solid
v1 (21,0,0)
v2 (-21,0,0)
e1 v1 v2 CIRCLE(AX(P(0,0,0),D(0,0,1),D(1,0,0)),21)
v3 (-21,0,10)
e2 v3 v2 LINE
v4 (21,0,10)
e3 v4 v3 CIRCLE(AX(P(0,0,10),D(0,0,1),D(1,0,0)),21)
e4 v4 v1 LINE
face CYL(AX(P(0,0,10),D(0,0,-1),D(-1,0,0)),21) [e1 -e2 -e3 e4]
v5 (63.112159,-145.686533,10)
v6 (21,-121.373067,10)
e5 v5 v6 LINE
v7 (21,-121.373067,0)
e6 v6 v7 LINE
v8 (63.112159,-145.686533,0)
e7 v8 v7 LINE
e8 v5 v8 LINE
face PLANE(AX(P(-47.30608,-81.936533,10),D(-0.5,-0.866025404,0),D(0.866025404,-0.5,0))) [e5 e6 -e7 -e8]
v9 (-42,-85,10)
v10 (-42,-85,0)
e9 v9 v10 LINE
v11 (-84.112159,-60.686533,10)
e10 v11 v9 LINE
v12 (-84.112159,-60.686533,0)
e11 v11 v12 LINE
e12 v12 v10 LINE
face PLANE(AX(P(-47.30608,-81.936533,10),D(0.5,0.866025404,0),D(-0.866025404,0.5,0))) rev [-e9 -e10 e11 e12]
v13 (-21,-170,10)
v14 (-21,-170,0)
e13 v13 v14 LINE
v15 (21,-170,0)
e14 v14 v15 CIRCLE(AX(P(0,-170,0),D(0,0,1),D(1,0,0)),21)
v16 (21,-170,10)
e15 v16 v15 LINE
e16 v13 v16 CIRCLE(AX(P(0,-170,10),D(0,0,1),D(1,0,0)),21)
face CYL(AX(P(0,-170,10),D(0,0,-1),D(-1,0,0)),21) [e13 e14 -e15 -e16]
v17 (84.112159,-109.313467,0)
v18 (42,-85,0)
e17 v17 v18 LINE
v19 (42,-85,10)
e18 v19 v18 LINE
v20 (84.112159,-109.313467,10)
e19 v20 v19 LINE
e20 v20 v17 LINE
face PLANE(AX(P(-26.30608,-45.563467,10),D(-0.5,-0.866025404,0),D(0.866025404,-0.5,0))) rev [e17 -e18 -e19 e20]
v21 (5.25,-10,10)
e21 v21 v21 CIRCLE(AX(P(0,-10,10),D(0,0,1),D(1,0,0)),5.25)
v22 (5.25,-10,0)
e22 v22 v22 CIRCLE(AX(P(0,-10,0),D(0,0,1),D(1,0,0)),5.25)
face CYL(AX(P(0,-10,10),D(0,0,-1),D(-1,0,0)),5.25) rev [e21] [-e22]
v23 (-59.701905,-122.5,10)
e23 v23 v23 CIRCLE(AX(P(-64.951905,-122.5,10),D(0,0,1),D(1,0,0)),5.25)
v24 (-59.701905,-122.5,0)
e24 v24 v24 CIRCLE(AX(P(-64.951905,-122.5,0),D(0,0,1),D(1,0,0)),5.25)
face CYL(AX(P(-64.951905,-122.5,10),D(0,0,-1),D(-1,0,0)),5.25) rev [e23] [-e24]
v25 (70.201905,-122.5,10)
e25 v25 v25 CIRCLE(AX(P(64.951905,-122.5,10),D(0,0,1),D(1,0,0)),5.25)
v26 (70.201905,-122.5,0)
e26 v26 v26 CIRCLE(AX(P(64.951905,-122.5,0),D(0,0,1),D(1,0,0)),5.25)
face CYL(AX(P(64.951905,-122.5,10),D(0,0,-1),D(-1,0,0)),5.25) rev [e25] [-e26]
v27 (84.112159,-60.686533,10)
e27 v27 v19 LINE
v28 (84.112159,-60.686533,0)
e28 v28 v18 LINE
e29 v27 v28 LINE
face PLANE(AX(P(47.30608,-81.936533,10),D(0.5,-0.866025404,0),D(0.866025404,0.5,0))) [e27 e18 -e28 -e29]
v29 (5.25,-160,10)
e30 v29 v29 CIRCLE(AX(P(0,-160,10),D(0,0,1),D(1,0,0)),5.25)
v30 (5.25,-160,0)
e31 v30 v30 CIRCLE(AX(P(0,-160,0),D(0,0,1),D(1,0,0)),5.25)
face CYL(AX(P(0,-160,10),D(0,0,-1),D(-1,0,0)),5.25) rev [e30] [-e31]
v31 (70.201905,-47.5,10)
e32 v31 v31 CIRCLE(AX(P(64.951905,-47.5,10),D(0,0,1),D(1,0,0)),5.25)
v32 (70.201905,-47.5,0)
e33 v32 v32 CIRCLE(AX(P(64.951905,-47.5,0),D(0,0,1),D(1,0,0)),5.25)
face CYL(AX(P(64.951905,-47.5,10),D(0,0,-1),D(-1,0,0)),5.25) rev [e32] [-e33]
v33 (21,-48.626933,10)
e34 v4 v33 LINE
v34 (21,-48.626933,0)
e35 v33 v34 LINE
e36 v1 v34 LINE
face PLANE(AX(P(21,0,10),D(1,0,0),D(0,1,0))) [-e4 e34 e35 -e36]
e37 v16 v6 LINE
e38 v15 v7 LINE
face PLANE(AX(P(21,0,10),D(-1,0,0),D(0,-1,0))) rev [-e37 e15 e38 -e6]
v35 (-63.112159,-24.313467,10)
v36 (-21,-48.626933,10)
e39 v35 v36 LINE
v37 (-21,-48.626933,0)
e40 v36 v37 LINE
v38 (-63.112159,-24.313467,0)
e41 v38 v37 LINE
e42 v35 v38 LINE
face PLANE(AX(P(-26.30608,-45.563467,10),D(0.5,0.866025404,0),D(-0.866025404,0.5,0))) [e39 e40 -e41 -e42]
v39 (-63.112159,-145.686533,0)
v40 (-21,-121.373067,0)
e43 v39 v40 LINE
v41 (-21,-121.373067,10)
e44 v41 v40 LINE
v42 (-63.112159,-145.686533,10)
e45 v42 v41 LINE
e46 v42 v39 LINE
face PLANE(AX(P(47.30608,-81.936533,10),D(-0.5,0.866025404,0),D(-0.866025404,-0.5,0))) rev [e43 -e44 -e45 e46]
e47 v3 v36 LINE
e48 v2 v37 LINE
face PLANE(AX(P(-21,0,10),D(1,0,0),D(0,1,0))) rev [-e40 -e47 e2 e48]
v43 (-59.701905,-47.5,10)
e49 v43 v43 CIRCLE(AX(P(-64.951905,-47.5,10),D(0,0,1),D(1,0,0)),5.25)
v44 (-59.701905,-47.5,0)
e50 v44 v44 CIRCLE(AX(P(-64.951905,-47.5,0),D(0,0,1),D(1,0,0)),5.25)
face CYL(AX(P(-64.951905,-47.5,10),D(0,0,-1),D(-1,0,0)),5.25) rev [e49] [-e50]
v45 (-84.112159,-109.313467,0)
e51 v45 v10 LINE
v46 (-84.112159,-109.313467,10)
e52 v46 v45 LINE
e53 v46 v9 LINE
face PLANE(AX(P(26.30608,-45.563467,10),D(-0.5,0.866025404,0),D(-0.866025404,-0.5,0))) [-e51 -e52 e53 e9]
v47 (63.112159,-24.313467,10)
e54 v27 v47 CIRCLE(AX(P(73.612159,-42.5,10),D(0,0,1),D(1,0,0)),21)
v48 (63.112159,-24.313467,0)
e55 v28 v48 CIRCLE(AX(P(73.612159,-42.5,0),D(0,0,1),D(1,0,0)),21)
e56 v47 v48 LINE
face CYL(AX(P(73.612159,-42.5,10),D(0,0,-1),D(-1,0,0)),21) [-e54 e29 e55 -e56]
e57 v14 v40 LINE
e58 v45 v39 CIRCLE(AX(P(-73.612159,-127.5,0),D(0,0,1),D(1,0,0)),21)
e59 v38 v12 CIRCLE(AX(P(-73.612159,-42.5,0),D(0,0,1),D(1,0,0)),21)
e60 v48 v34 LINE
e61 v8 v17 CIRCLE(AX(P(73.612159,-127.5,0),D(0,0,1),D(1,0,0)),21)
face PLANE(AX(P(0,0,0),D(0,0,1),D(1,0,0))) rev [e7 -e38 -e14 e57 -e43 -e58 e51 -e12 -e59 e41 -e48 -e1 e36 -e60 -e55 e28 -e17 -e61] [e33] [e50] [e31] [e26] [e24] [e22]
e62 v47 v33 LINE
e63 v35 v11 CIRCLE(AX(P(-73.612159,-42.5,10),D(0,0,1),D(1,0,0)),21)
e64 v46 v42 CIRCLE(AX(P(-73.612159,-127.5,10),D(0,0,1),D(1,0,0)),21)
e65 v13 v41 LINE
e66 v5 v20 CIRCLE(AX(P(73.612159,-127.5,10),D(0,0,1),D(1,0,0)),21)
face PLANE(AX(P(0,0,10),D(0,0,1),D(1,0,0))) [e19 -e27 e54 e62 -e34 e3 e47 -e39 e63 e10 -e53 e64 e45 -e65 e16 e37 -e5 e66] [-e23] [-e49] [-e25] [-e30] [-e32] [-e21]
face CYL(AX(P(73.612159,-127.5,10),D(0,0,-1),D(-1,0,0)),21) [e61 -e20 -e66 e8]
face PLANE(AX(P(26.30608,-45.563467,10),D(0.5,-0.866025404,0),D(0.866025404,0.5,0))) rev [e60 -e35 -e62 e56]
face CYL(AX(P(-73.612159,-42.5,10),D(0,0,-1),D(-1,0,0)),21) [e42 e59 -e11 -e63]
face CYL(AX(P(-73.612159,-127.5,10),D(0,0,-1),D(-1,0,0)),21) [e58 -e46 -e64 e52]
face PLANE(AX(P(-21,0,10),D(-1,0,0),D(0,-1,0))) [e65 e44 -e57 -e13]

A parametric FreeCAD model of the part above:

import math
import FreeCAD as App
import Part
import Sketcher
Q = App.Units.Quantity

doc = App.newDocument("Part")
params = doc.addObject("Spreadsheet::Sheet", "Params")
for row, (alias, value) in enumerate([
    ("sketch1_radius", "21 mm"),
    ("sketch1_diameter", "10.5 mm"),
    ("pad1_length", "10 mm"),
], start=1):
    params.set(f"A{row}", alias)
    params.set(f"B{row}", "=" + value)
    params.setAlias(f"B{row}", alias)

body = doc.addObject("PartDesign::Body", "Body")

sketch1 = doc.addObject("Sketcher::SketchObject", "Sketch")
body.addObject(sketch1)
sketch1.AttachmentSupport = (doc.XY_Plane, [""])
sketch1.MapMode = "FlatFace"
sketch1.addGeometry([
    Part.LineSegment(App.Vector(21, -49, 0), App.Vector(21, 0, 0)),
    Part.ArcOfCircle(Part.Circle(App.Vector(0, 0, 0), App.Vector(0, 0, 1), 21), math.radians(0), math.radians(180)),
    Part.LineSegment(App.Vector(-21, 0, 0), App.Vector(-21, -49, 0)),
    Part.LineSegment(App.Vector(-21, -49, 0), App.Vector(-63, -24, 0)),
    Part.ArcOfCircle(Part.Circle(App.Vector(-74, -42, 0), App.Vector(0, 0, 1), 21), math.radians(60), math.radians(240)),
    Part.LineSegment(App.Vector(-84, -61, 0), App.Vector(-42, -85, 0)),
    Part.LineSegment(App.Vector(-42, -85, 0), App.Vector(-84, -109, 0)),
    Part.ArcOfCircle(Part.Circle(App.Vector(-74, -128, 0), App.Vector(0, 0, 1), 21), math.radians(120), math.radians(300)),
    Part.LineSegment(App.Vector(-63, -146, 0), App.Vector(-21, -121, 0)),
    Part.LineSegment(App.Vector(-21, -121, 0), App.Vector(-21, -170, 0)),
    Part.ArcOfCircle(Part.Circle(App.Vector(0, -170, 0), App.Vector(0, 0, 1), 21), math.radians(180), math.radians(360)),
    Part.LineSegment(App.Vector(21, -170, 0), App.Vector(21, -121, 0)),
    Part.LineSegment(App.Vector(21, -121, 0), App.Vector(63, -146, 0)),
    Part.ArcOfCircle(Part.Circle(App.Vector(74, -128, 0), App.Vector(0, 0, 1), 21), math.radians(-120), math.radians(60)),
    Part.LineSegment(App.Vector(84, -109, 0), App.Vector(42, -85, 0)),
    Part.LineSegment(App.Vector(42, -85, 0), App.Vector(84, -61, 0)),
    Part.ArcOfCircle(Part.Circle(App.Vector(74, -42, 0), App.Vector(0, 0, 1), 21), math.radians(-60), math.radians(120)),
    Part.LineSegment(App.Vector(63, -24, 0), App.Vector(21, -49, 0)),
    Part.Circle(App.Vector(65, -122, 0), App.Vector(0, 0, 1), 5),
    Part.Circle(App.Vector(0, -160, 0), App.Vector(0, 0, 1), 5),
    Part.Circle(App.Vector(-65, -122, 0), App.Vector(0, 0, 1), 5),
    Part.Circle(App.Vector(65, -48, 0), App.Vector(0, 0, 1), 5),
    Part.Circle(App.Vector(-65, -48, 0), App.Vector(0, 0, 1), 5),
    Part.Circle(App.Vector(0, -10, 0), App.Vector(0, 0, 1), 5),
], False)
sketch1.addConstraint([
    Sketcher.Constraint("Tangent", 0, 2, 1, 1),
    Sketcher.Constraint("Tangent", 1, 2, 2, 1),
    Sketcher.Constraint("Coincident", 2, 2, 3, 1),
    Sketcher.Constraint("Tangent", 3, 2, 4, 1),
    Sketcher.Constraint("Tangent", 4, 2, 5, 1),
    Sketcher.Constraint("Coincident", 5, 2, 6, 1),
    Sketcher.Constraint("Tangent", 6, 2, 7, 1),
    Sketcher.Constraint("Tangent", 7, 2, 8, 1),
    Sketcher.Constraint("Coincident", 8, 2, 9, 1),
    Sketcher.Constraint("Tangent", 9, 2, 10, 1),
    Sketcher.Constraint("Tangent", 10, 2, 11, 1),
    Sketcher.Constraint("Coincident", 11, 2, 12, 1),
    Sketcher.Constraint("Tangent", 12, 2, 13, 1),
    Sketcher.Constraint("Tangent", 13, 2, 14, 1),
    Sketcher.Constraint("Coincident", 14, 2, 15, 1),
    Sketcher.Constraint("Tangent", 15, 2, 16, 1),
    Sketcher.Constraint("Tangent", 16, 2, 17, 1),
    Sketcher.Constraint("Coincident", 17, 2, 0, 1),
    Sketcher.Constraint("Vertical", 0),
    Sketcher.Constraint("Vertical", 2),
    Sketcher.Constraint("Vertical", 9),
    Sketcher.Constraint("Vertical", 11),
    Sketcher.Constraint("Coincident", 1, 3, -1, 1),
    Sketcher.Constraint("Equal", 1, 4),
    Sketcher.Constraint("Equal", 4, 7),
    Sketcher.Constraint("Equal", 7, 10),
    Sketcher.Constraint("Equal", 10, 13),
    Sketcher.Constraint("Equal", 13, 16),
    Sketcher.Constraint("Equal", 18, 19),
    Sketcher.Constraint("Equal", 19, 20),
    Sketcher.Constraint("Equal", 20, 21),
    Sketcher.Constraint("Equal", 21, 22),
    Sketcher.Constraint("Equal", 22, 23),
    Sketcher.Constraint("Symmetric", 7, 3, 13, 3, -2),
    Sketcher.Constraint("Symmetric", 4, 3, 16, 3, -2),
    Sketcher.Constraint("Symmetric", 18, 3, 20, 3, -2),
    Sketcher.Constraint("Symmetric", 21, 3, 22, 3, -2),
    Sketcher.Constraint("Symmetric", 8, 2, 11, 2, -2),
    Sketcher.Constraint("Symmetric", 5, 2, 14, 2, -2),
    Sketcher.Constraint("PointOnObject", 19, 3, -2),
    Sketcher.Constraint("PointOnObject", 23, 3, -2),
    Sketcher.Constraint("Parallel", 3, 5),
    Sketcher.Constraint("Parallel", 6, 8),
    Sketcher.Constraint("Parallel", 5, 12),
    Sketcher.Constraint("Parallel", 15, 17),
    Sketcher.Constraint("Vertical", 4, 3, 7, 3),
    Sketcher.Constraint("Vertical", 18, 3, 21, 3),
    Sketcher.Constraint("Equal", 2, 9),
    Sketcher.Constraint("Equal", 3, 5),
    Sketcher.Constraint("Radius", 1, Q("21 mm")),
    Sketcher.Constraint("Diameter", 18, Q("10.5 mm")),
    Sketcher.Constraint("Angle", 3, Q("150 deg")),
    Sketcher.Constraint("DistanceY", 10, 3, -1, 1, Q("170 mm")),
    Sketcher.Constraint("DistanceY", 19, 3, -1, 1, Q("160 mm")),
    Sketcher.Constraint("DistanceY", 23, 3, -1, 1, Q("10 mm")),
    Sketcher.Constraint("DistanceY", 7, 3, 4, 3, Q("85 mm")),
    Sketcher.Constraint("DistanceY", 13, 3, 18, 3, Q("5 mm")),
    Sketcher.Constraint("DistanceY", 21, 3, 16, 3, Q("5 mm")),
    Sketcher.Constraint("DistanceX", 20, 3, 18, 3, Q("129.903811 mm")),
])
sketch1.setExpression("Constraints[49]", "Params.sketch1_radius")
sketch1.setExpression("Constraints[50]", "Params.sketch1_diameter")
pad1 = doc.addObject("PartDesign::Pad", "Pad")
body.addObject(pad1)
pad1.Profile = sketch1
pad1.setExpression("Length", "Params.pad1_length")

doc.recompute()
